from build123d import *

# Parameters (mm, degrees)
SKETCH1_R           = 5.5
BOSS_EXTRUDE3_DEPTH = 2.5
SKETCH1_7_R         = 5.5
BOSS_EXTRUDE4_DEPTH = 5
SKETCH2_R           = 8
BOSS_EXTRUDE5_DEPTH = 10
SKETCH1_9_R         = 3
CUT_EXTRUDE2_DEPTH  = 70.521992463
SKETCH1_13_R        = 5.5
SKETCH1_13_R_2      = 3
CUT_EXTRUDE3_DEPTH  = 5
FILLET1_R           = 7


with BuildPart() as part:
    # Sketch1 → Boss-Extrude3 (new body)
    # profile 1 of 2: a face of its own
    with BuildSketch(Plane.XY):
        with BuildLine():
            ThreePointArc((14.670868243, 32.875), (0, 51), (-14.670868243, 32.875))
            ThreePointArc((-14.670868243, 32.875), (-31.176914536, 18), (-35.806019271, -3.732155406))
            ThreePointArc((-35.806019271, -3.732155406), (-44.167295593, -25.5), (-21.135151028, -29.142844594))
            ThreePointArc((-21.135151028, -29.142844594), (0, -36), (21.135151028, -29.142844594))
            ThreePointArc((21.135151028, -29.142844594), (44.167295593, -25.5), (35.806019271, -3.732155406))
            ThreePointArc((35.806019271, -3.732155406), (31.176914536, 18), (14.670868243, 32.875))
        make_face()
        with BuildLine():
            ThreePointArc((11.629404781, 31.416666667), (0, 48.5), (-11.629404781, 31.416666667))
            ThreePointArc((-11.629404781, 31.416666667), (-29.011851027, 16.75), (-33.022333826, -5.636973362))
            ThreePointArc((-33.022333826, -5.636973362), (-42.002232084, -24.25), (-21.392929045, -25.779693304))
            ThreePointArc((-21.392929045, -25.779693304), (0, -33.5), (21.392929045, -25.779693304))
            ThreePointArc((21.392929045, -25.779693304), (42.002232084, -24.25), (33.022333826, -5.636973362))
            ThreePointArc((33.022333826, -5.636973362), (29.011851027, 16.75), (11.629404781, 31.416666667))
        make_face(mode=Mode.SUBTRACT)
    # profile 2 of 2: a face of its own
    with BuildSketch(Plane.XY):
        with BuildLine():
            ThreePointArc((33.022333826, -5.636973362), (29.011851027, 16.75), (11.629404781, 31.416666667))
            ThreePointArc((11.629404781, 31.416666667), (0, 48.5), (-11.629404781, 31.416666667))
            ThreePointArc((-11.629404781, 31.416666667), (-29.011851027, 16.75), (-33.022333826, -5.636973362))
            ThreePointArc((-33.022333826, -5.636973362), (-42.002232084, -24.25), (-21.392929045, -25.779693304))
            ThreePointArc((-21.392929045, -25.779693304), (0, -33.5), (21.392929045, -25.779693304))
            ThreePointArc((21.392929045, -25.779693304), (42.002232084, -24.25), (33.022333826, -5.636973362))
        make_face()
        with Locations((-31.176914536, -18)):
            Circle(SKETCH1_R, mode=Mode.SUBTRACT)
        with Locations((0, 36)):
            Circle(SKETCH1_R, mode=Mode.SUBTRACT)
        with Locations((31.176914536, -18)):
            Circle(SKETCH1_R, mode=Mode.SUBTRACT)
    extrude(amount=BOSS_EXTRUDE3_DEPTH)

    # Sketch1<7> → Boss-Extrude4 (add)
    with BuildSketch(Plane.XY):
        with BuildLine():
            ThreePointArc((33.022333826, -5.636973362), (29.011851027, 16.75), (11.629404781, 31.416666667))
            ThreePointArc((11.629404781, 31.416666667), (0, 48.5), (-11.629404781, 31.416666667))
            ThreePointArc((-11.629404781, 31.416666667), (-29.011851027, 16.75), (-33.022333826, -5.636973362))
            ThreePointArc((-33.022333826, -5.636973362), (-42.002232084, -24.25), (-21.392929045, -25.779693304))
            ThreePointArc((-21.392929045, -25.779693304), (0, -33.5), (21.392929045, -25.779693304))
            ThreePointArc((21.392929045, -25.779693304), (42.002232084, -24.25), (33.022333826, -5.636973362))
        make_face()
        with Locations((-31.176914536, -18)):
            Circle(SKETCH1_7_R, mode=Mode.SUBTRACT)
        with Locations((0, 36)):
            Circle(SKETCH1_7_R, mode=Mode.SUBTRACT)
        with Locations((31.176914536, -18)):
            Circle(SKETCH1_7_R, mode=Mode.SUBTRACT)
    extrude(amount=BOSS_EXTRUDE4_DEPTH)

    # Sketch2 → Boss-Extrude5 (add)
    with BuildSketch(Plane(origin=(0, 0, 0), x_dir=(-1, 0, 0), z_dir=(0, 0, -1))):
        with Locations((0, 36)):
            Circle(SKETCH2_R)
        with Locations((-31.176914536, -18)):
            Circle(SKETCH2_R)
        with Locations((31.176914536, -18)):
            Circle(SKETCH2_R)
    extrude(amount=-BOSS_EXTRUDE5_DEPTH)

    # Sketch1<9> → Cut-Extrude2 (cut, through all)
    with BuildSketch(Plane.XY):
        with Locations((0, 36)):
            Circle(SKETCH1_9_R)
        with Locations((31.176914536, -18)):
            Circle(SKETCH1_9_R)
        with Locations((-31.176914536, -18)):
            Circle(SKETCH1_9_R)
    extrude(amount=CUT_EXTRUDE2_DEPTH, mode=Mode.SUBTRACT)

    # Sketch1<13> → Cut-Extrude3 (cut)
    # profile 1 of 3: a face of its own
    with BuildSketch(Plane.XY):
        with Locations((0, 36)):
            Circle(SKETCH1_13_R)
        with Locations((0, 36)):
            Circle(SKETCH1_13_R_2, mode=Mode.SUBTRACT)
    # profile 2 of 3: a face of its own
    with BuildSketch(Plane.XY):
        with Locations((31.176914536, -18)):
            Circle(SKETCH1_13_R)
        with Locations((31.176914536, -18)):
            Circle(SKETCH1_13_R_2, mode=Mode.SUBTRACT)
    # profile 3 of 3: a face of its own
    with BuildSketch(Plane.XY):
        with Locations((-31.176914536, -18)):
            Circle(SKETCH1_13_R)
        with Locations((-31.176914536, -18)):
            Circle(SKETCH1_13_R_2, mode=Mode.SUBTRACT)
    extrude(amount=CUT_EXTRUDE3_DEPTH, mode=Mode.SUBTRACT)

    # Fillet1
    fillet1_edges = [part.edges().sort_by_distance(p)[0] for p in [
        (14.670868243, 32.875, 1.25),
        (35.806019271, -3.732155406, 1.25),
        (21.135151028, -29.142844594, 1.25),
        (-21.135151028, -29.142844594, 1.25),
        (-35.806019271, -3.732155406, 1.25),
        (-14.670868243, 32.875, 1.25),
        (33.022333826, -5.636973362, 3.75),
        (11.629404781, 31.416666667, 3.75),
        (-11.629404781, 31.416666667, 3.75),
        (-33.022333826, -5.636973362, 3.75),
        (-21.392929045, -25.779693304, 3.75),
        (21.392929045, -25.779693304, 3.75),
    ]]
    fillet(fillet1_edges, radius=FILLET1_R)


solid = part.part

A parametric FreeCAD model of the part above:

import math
import FreeCAD as App
import Part
import Sketcher
Q = App.Units.Quantity


def edges_at(feature, points):
    """Names of the edges that pass closest to the given points."""
    edges = feature.Shape.Edges
    near = lambda p: min(range(len(edges)), key=lambda i: edges[i].distToShape(Part.Vertex(*p))[0])
    return sorted({f"Edge{near(p) + 1}" for p in points})

doc = App.newDocument("Part")
body = doc.addObject("PartDesign::Body", "Body")

# Sketch on XY plane
sketch1 = doc.addObject("Sketcher::SketchObject", "Sketch")
body.addObject(sketch1)
sketch1.AttachmentSupport = (doc.XY_Plane, [""])
sketch1.MapMode = "FlatFace"
sketch1.addGeometry([
    Part.ArcOfCircle(Part.Circle(App.Vector(0, 36, 0), App.Vector(0, 0, 1), 15), math.radians(-12), math.radians(192)),  # 0
    Part.ArcOfCircle(Part.Circle(App.Vector(0, 0, 0), App.Vector(0, 0, 1), 36), math.radians(114), math.radians(186)),  # 1
    Part.ArcOfCircle(Part.Circle(App.Vector(-31, -18, 0), App.Vector(0, 0, 1), 15), math.radians(108), math.radians(312)),  # 2
    Part.ArcOfCircle(Part.Circle(App.Vector(0, 0, 0), App.Vector(0, 0, 1), 36), math.radians(-126), math.radians(-54)),  # 3
    Part.ArcOfCircle(Part.Circle(App.Vector(31, -18, 0), App.Vector(0, 0, 1), 15), math.radians(-132), math.radians(72)),  # 4
    Part.ArcOfCircle(Part.Circle(App.Vector(0, 0, 0), App.Vector(0, 0, 1), 36), math.radians(-6), math.radians(66)),  # 5
    Part.Circle(App.Vector(-31, -18, 0), App.Vector(0, 0, 1), 6),  # 6
    Part.Circle(App.Vector(31, -18, 0), App.Vector(0, 0, 1), 6),  # 7
    Part.Circle(App.Vector(0, 36, 0), App.Vector(0, 0, 1), 6),  # 8
], False)
sketch1.addConstraint([
    Sketcher.Constraint("Coincident", 0, 2, 1, 1),
    Sketcher.Constraint("Coincident", 1, 2, 2, 1),
    Sketcher.Constraint("Coincident", 2, 2, 3, 1),
    Sketcher.Constraint("Coincident", 3, 2, 4, 1),
    Sketcher.Constraint("Coincident", 4, 2, 5, 1),
    Sketcher.Constraint("Coincident", 5, 2, 0, 1),
    Sketcher.Constraint("Coincident", 1, 3, -1, 1),
    Sketcher.Constraint("Coincident", 3, 3, -1, 1),
    Sketcher.Constraint("Coincident", 5, 3, -1, 1),
    Sketcher.Constraint("Coincident", 6, 3, 2, 3),
    Sketcher.Constraint("Coincident", 7, 3, 4, 3),
    Sketcher.Constraint("Coincident", 8, 3, 0, 3),
    Sketcher.Constraint("Equal", 0, 2),
    Sketcher.Constraint("Equal", 1, 3),
    Sketcher.Constraint("Equal", 2, 4),
    Sketcher.Constraint("Equal", 3, 5),
    Sketcher.Constraint("Equal", 6, 7),
    Sketcher.Constraint("Equal", 7, 8),
    Sketcher.Constraint("Symmetric", 2, 3, 4, 3, -2),
    Sketcher.Constraint("PointOnObject", 0, 3, -2),
    Sketcher.Constraint("Diameter", 6, Q("11 mm")),
    Sketcher.Constraint("Radius", 0, Q("15 mm")),
    Sketcher.Constraint("Radius", 1, Q("36 mm")),
    Sketcher.Constraint("DistanceY", -1, 1, 0, 3, Q("36 mm")),
    Sketcher.Constraint("DistanceY", 2, 3, -1, 1, Q("18 mm")),
    Sketcher.Constraint("DistanceX", 1, 2, -1, 1, Q("35.806019 mm")),
])
pad1 = doc.addObject("PartDesign::Pad", "Pad")
body.addObject(pad1)
pad1.Profile = sketch1
pad1.Length = 2.5

# Sketch on XY plane
sketch2 = doc.addObject("Sketcher::SketchObject", "Sketch001")
body.addObject(sketch2)
sketch2.AttachmentSupport = (doc.XY_Plane, [""])
sketch2.MapMode = "FlatFace"
sketch2.addGeometry([
    Part.ArcOfCircle(Part.Circle(App.Vector(0, 0, 0), App.Vector(0, 0, 1), 34), math.radians(-10), math.radians(70)),  # 0
    Part.ArcOfCircle(Part.Circle(App.Vector(0, 36, 0), App.Vector(0, 0, 1), 12), math.radians(-22), math.radians(202)),  # 1
    Part.ArcOfCircle(Part.Circle(App.Vector(0, 0, 0), App.Vector(0, 0, 1), 34), math.radians(110), math.radians(190)),  # 2
    Part.ArcOfCircle(Part.Circle(App.Vector(-31, -18, 0), App.Vector(0, 0, 1), 12), math.radians(98), math.radians(322)),  # 3
    Part.ArcOfCircle(Part.Circle(App.Vector(0, 0, 0), App.Vector(0, 0, 1), 33), math.radians(-130), math.radians(-50)),  # 4
    Part.ArcOfCircle(Part.Circle(App.Vector(31, -18, 0), App.Vector(0, 0, 1), 12), math.radians(-142), math.radians(82)),  # 5
    Part.Circle(App.Vector(-31, -18, 0), App.Vector(0, 0, 1), 6),  # 6
    Part.Circle(App.Vector(31, -18, 0), App.Vector(0, 0, 1), 6),  # 7
    Part.Circle(App.Vector(0, 36, 0), App.Vector(0, 0, 1), 6),  # 8
], False)
sketch2.addConstraint([
    Sketcher.Constraint("Coincident", 0, 2, 1, 1),
    Sketcher.Constraint("Coincident", 1, 2, 2, 1),
    Sketcher.Constraint("Coincident", 2, 2, 3, 1),
    Sketcher.Constraint("Coincident", 3, 2, 4, 1),
    Sketcher.Constraint("Coincident", 4, 2, 5, 1),
    Sketcher.Constraint("Coincident", 5, 2, 0, 1),
    Sketcher.Constraint("Coincident", 0, 3, -1, 1),
    Sketcher.Constraint("Coincident", 2, 3, -1, 1),
    Sketcher.Constraint("Coincident", 4, 3, -1, 1),
    Sketcher.Constraint("Coincident", 6, 3, 3, 3),
    Sketcher.Constraint("Coincident", 7, 3, 5, 3),
    Sketcher.Constraint("Coincident", 8, 3, 1, 3),
    Sketcher.Constraint("Equal", 0, 2),
    Sketcher.Constraint("Equal", 1, 3),
    Sketcher.Constraint("Equal", 2, 4),
    Sketcher.Constraint("Equal", 3, 5),
    Sketcher.Constraint("Equal", 6, 7),
    Sketcher.Constraint("Equal", 7, 8),
    Sketcher.Constraint("Symmetric", 3, 3, 5, 3, -2),
    Sketcher.Constraint("PointOnObject", 1, 3, -2),
    Sketcher.Constraint("Diameter", 6, Q("11 mm")),
    Sketcher.Constraint("Radius", 0, Q("33.5 mm")),
    Sketcher.Constraint("Radius", 1, Q("12.5 mm")),
    Sketcher.Constraint("DistanceY", -1, 1, 1, 3, Q("36 mm")),
    Sketcher.Constraint("DistanceY", 3, 3, -1, 1, Q("18 mm")),
    Sketcher.Constraint("DistanceX", 3, 2, -1, 1, Q("21.392929 mm")),
])
pad2 = doc.addObject("PartDesign::Pad", "Pad001")
body.addObject(pad2)
pad2.Profile = sketch2
pad2.Length = 5

# Sketch on XY plane
sketch3 = doc.addObject("Sketcher::SketchObject", "Sketch002")
body.addObject(sketch3)
sketch3.AttachmentSupport = (doc.XY_Plane, [""])
sketch3.MapMode = "FlatFace"
sketch3.addGeometry([
    Part.Circle(App.Vector(0, 36, 0), App.Vector(0, 0, 1), 8),
    Part.Circle(App.Vector(31, -18, 0), App.Vector(0, 0, 1), 8),
    Part.Circle(App.Vector(-31, -18, 0), App.Vector(0, 0, 1), 8),
], False)
sketch3.addConstraint([
    Sketcher.Constraint("Equal", 0, 1),
    Sketcher.Constraint("Equal", 1, 2),
    Sketcher.Constraint("Symmetric", 1, 3, 2, 3, -2),
    Sketcher.Constraint("PointOnObject", 0, 3, -2),
    Sketcher.Constraint("Diameter", 0, Q("16 mm")),
    Sketcher.Constraint("DistanceY", -1, 1, 0, 3, Q("36 mm")),
    Sketcher.Constraint("DistanceY", 1, 3, -1, 1, Q("18 mm")),
    Sketcher.Constraint("DistanceX", 2, 3, 1, 3, Q("62.353829 mm")),
])
pad3 = doc.addObject("PartDesign::Pad", "Pad002")
body.addObject(pad3)
pad3.Profile = sketch3
pad3.Length = 10

# Sketch on XY plane
sketch4 = doc.addObject("Sketcher::SketchObject", "Sketch003")
body.addObject(sketch4)
sketch4.AttachmentSupport = (doc.XY_Plane, [""])
sketch4.MapMode = "FlatFace"
sketch4.addGeometry([
    Part.Circle(App.Vector(0, 36, 0), App.Vector(0, 0, 1), 3),
    Part.Circle(App.Vector(31.2, -18, 0), App.Vector(0, 0, 1), 3),
    Part.Circle(App.Vector(-31.2, -18, 0), App.Vector(0, 0, 1), 3),
], False)
sketch4.addConstraint([
    Sketcher.Constraint("Equal", 0, 1),
    Sketcher.Constraint("Equal", 1, 2),
    Sketcher.Constraint("Symmetric", 1, 3, 2, 3, -2),
    Sketcher.Constraint("PointOnObject", 0, 3, -2),
    Sketcher.Constraint("Diameter", 0, Q("6 mm")),
    Sketcher.Constraint("DistanceY", -1, 1, 0, 3, Q("36 mm")),
    Sketcher.Constraint("DistanceY", 1, 3, -1, 1, Q("18 mm")),
    Sketcher.Constraint("DistanceX", 2, 3, 1, 3, Q("62.353829 mm")),
])
pocket1 = doc.addObject("PartDesign::Pocket", "Pocket")
body.addObject(pocket1)
pocket1.Profile = sketch4
pocket1.Type = "ThroughAll"
pocket1.Reversed = True

# Sketch on XY plane
sketch5 = doc.addObject("Sketcher::SketchObject", "Sketch004")
body.addObject(sketch5)
sketch5.AttachmentSupport = (doc.XY_Plane, [""])
sketch5.MapMode = "FlatFace"
sketch5.addGeometry([
    Part.Circle(App.Vector(0, 36, 0), App.Vector(0, 0, 1), 5.5),  # 0
    Part.Circle(App.Vector(0, 36, 0), App.Vector(0, 0, 1), 3),  # 1
    Part.Circle(App.Vector(31.2, -18, 0), App.Vector(0, 0, 1), 5.5),  # 2
    Part.Circle(App.Vector(31.2, -18, 0), App.Vector(0, 0, 1), 3),  # 3
    Part.Circle(App.Vector(-31.2, -18, 0), App.Vector(0, 0, 1), 5.5),  # 4
    Part.Circle(App.Vector(-31.2, -18, 0), App.Vector(0, 0, 1), 3),  # 5
], False)
sketch5.addConstraint([
    Sketcher.Constraint("Coincident", 1, 3, 0, 3),
    Sketcher.Constraint("Coincident", 3, 3, 2, 3),
    Sketcher.Constraint("Coincident", 5, 3, 4, 3),
    Sketcher.Constraint("Equal", 0, 2),
    Sketcher.Constraint("Equal", 1, 3),
    Sketcher.Constraint("Equal", 2, 4),
    Sketcher.Constraint("Equal", 3, 5),
    Sketcher.Constraint("Symmetric", 2, 3, 4, 3, -2),
    Sketcher.Constraint("PointOnObject", 0, 3, -2),
    Sketcher.Constraint("Diameter", 0, Q("11 mm")),
    Sketcher.Constraint("Diameter", 1, Q("6 mm")),
    Sketcher.Constraint("DistanceY", -1, 1, 0, 3, Q("36 mm")),
    Sketcher.Constraint("DistanceY", 2, 3, -1, 1, Q("18 mm")),
    Sketcher.Constraint("DistanceX", 4, 3, 2, 3, Q("62.353829 mm")),
])
pocket2 = doc.addObject("PartDesign::Pocket", "Pocket001")
body.addObject(pocket2)
pocket2.Profile = sketch5
pocket2.Length = 5
pocket2.Reversed = True
doc.recompute()

fillet = doc.addObject("PartDesign::Fillet", "Fillet")
body.addObject(fillet)
fillet.Base = (pocket2, edges_at(pocket2, [
    (14.671, 32.875, 1.25),
    (35.806, -3.732, 1.25),
    (21.135, -29.143, 1.25),
    (-21.135, -29.143, 1.25),
    (-35.806, -3.732, 1.25),
    (-14.671, 32.875, 1.25),
    (33.022, -5.637, 3.75),
    (11.629, 31.417, 3.75),
    (-11.629, 31.417, 3.75),
    (-33.022, -5.637, 3.75),
    (-21.393, -25.78, 3.75),
    (21.393, -25.78, 3.75),
]))
fillet.Radius = 7

doc.recompute()
